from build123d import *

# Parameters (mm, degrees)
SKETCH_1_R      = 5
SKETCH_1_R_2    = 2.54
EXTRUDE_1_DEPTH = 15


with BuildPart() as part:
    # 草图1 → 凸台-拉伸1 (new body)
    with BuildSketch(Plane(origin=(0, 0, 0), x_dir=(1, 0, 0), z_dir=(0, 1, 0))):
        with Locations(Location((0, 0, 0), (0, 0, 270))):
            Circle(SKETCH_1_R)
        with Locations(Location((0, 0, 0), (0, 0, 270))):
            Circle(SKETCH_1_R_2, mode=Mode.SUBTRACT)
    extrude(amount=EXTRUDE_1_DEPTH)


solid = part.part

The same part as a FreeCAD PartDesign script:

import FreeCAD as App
import Part
import Sketcher

V = App.Vector
Q = App.Units.Quantity

doc = App.newDocument("Part")
body = doc.addObject("PartDesign::Body", "Body")

# Sketch on XZ plane
sketch1 = body.newObject("Sketcher::SketchObject", "Sketch")
sketch1.AttachmentSupport = (doc.getObject("XZ_Plane"), [""])
sketch1.MapMode = "FlatFace"
sketch1.addGeometry(Part.Circle(V(0, 0, 0), V(0, 0, 1), 5), False)
sketch1.addGeometry(Part.Circle(V(0, 0, 0), V(0, 0, 1), 2.54), False)
sketch1.addConstraint(Sketcher.Constraint("Coincident", 0, 3, -1, 1))
sketch1.addConstraint(Sketcher.Constraint("Coincident", 1, 3, -1, 1))
sketch1.addConstraint(Sketcher.Constraint("Diameter", 0, Q("10 mm")))
sketch1.addConstraint(Sketcher.Constraint("Diameter", 1, Q("5.08 mm")))
pad1 = body.newObject("PartDesign::Pad", "Pad")
pad1.Profile = sketch1
pad1.Length = 15
pad1.Reversed = True

doc.recompute()
